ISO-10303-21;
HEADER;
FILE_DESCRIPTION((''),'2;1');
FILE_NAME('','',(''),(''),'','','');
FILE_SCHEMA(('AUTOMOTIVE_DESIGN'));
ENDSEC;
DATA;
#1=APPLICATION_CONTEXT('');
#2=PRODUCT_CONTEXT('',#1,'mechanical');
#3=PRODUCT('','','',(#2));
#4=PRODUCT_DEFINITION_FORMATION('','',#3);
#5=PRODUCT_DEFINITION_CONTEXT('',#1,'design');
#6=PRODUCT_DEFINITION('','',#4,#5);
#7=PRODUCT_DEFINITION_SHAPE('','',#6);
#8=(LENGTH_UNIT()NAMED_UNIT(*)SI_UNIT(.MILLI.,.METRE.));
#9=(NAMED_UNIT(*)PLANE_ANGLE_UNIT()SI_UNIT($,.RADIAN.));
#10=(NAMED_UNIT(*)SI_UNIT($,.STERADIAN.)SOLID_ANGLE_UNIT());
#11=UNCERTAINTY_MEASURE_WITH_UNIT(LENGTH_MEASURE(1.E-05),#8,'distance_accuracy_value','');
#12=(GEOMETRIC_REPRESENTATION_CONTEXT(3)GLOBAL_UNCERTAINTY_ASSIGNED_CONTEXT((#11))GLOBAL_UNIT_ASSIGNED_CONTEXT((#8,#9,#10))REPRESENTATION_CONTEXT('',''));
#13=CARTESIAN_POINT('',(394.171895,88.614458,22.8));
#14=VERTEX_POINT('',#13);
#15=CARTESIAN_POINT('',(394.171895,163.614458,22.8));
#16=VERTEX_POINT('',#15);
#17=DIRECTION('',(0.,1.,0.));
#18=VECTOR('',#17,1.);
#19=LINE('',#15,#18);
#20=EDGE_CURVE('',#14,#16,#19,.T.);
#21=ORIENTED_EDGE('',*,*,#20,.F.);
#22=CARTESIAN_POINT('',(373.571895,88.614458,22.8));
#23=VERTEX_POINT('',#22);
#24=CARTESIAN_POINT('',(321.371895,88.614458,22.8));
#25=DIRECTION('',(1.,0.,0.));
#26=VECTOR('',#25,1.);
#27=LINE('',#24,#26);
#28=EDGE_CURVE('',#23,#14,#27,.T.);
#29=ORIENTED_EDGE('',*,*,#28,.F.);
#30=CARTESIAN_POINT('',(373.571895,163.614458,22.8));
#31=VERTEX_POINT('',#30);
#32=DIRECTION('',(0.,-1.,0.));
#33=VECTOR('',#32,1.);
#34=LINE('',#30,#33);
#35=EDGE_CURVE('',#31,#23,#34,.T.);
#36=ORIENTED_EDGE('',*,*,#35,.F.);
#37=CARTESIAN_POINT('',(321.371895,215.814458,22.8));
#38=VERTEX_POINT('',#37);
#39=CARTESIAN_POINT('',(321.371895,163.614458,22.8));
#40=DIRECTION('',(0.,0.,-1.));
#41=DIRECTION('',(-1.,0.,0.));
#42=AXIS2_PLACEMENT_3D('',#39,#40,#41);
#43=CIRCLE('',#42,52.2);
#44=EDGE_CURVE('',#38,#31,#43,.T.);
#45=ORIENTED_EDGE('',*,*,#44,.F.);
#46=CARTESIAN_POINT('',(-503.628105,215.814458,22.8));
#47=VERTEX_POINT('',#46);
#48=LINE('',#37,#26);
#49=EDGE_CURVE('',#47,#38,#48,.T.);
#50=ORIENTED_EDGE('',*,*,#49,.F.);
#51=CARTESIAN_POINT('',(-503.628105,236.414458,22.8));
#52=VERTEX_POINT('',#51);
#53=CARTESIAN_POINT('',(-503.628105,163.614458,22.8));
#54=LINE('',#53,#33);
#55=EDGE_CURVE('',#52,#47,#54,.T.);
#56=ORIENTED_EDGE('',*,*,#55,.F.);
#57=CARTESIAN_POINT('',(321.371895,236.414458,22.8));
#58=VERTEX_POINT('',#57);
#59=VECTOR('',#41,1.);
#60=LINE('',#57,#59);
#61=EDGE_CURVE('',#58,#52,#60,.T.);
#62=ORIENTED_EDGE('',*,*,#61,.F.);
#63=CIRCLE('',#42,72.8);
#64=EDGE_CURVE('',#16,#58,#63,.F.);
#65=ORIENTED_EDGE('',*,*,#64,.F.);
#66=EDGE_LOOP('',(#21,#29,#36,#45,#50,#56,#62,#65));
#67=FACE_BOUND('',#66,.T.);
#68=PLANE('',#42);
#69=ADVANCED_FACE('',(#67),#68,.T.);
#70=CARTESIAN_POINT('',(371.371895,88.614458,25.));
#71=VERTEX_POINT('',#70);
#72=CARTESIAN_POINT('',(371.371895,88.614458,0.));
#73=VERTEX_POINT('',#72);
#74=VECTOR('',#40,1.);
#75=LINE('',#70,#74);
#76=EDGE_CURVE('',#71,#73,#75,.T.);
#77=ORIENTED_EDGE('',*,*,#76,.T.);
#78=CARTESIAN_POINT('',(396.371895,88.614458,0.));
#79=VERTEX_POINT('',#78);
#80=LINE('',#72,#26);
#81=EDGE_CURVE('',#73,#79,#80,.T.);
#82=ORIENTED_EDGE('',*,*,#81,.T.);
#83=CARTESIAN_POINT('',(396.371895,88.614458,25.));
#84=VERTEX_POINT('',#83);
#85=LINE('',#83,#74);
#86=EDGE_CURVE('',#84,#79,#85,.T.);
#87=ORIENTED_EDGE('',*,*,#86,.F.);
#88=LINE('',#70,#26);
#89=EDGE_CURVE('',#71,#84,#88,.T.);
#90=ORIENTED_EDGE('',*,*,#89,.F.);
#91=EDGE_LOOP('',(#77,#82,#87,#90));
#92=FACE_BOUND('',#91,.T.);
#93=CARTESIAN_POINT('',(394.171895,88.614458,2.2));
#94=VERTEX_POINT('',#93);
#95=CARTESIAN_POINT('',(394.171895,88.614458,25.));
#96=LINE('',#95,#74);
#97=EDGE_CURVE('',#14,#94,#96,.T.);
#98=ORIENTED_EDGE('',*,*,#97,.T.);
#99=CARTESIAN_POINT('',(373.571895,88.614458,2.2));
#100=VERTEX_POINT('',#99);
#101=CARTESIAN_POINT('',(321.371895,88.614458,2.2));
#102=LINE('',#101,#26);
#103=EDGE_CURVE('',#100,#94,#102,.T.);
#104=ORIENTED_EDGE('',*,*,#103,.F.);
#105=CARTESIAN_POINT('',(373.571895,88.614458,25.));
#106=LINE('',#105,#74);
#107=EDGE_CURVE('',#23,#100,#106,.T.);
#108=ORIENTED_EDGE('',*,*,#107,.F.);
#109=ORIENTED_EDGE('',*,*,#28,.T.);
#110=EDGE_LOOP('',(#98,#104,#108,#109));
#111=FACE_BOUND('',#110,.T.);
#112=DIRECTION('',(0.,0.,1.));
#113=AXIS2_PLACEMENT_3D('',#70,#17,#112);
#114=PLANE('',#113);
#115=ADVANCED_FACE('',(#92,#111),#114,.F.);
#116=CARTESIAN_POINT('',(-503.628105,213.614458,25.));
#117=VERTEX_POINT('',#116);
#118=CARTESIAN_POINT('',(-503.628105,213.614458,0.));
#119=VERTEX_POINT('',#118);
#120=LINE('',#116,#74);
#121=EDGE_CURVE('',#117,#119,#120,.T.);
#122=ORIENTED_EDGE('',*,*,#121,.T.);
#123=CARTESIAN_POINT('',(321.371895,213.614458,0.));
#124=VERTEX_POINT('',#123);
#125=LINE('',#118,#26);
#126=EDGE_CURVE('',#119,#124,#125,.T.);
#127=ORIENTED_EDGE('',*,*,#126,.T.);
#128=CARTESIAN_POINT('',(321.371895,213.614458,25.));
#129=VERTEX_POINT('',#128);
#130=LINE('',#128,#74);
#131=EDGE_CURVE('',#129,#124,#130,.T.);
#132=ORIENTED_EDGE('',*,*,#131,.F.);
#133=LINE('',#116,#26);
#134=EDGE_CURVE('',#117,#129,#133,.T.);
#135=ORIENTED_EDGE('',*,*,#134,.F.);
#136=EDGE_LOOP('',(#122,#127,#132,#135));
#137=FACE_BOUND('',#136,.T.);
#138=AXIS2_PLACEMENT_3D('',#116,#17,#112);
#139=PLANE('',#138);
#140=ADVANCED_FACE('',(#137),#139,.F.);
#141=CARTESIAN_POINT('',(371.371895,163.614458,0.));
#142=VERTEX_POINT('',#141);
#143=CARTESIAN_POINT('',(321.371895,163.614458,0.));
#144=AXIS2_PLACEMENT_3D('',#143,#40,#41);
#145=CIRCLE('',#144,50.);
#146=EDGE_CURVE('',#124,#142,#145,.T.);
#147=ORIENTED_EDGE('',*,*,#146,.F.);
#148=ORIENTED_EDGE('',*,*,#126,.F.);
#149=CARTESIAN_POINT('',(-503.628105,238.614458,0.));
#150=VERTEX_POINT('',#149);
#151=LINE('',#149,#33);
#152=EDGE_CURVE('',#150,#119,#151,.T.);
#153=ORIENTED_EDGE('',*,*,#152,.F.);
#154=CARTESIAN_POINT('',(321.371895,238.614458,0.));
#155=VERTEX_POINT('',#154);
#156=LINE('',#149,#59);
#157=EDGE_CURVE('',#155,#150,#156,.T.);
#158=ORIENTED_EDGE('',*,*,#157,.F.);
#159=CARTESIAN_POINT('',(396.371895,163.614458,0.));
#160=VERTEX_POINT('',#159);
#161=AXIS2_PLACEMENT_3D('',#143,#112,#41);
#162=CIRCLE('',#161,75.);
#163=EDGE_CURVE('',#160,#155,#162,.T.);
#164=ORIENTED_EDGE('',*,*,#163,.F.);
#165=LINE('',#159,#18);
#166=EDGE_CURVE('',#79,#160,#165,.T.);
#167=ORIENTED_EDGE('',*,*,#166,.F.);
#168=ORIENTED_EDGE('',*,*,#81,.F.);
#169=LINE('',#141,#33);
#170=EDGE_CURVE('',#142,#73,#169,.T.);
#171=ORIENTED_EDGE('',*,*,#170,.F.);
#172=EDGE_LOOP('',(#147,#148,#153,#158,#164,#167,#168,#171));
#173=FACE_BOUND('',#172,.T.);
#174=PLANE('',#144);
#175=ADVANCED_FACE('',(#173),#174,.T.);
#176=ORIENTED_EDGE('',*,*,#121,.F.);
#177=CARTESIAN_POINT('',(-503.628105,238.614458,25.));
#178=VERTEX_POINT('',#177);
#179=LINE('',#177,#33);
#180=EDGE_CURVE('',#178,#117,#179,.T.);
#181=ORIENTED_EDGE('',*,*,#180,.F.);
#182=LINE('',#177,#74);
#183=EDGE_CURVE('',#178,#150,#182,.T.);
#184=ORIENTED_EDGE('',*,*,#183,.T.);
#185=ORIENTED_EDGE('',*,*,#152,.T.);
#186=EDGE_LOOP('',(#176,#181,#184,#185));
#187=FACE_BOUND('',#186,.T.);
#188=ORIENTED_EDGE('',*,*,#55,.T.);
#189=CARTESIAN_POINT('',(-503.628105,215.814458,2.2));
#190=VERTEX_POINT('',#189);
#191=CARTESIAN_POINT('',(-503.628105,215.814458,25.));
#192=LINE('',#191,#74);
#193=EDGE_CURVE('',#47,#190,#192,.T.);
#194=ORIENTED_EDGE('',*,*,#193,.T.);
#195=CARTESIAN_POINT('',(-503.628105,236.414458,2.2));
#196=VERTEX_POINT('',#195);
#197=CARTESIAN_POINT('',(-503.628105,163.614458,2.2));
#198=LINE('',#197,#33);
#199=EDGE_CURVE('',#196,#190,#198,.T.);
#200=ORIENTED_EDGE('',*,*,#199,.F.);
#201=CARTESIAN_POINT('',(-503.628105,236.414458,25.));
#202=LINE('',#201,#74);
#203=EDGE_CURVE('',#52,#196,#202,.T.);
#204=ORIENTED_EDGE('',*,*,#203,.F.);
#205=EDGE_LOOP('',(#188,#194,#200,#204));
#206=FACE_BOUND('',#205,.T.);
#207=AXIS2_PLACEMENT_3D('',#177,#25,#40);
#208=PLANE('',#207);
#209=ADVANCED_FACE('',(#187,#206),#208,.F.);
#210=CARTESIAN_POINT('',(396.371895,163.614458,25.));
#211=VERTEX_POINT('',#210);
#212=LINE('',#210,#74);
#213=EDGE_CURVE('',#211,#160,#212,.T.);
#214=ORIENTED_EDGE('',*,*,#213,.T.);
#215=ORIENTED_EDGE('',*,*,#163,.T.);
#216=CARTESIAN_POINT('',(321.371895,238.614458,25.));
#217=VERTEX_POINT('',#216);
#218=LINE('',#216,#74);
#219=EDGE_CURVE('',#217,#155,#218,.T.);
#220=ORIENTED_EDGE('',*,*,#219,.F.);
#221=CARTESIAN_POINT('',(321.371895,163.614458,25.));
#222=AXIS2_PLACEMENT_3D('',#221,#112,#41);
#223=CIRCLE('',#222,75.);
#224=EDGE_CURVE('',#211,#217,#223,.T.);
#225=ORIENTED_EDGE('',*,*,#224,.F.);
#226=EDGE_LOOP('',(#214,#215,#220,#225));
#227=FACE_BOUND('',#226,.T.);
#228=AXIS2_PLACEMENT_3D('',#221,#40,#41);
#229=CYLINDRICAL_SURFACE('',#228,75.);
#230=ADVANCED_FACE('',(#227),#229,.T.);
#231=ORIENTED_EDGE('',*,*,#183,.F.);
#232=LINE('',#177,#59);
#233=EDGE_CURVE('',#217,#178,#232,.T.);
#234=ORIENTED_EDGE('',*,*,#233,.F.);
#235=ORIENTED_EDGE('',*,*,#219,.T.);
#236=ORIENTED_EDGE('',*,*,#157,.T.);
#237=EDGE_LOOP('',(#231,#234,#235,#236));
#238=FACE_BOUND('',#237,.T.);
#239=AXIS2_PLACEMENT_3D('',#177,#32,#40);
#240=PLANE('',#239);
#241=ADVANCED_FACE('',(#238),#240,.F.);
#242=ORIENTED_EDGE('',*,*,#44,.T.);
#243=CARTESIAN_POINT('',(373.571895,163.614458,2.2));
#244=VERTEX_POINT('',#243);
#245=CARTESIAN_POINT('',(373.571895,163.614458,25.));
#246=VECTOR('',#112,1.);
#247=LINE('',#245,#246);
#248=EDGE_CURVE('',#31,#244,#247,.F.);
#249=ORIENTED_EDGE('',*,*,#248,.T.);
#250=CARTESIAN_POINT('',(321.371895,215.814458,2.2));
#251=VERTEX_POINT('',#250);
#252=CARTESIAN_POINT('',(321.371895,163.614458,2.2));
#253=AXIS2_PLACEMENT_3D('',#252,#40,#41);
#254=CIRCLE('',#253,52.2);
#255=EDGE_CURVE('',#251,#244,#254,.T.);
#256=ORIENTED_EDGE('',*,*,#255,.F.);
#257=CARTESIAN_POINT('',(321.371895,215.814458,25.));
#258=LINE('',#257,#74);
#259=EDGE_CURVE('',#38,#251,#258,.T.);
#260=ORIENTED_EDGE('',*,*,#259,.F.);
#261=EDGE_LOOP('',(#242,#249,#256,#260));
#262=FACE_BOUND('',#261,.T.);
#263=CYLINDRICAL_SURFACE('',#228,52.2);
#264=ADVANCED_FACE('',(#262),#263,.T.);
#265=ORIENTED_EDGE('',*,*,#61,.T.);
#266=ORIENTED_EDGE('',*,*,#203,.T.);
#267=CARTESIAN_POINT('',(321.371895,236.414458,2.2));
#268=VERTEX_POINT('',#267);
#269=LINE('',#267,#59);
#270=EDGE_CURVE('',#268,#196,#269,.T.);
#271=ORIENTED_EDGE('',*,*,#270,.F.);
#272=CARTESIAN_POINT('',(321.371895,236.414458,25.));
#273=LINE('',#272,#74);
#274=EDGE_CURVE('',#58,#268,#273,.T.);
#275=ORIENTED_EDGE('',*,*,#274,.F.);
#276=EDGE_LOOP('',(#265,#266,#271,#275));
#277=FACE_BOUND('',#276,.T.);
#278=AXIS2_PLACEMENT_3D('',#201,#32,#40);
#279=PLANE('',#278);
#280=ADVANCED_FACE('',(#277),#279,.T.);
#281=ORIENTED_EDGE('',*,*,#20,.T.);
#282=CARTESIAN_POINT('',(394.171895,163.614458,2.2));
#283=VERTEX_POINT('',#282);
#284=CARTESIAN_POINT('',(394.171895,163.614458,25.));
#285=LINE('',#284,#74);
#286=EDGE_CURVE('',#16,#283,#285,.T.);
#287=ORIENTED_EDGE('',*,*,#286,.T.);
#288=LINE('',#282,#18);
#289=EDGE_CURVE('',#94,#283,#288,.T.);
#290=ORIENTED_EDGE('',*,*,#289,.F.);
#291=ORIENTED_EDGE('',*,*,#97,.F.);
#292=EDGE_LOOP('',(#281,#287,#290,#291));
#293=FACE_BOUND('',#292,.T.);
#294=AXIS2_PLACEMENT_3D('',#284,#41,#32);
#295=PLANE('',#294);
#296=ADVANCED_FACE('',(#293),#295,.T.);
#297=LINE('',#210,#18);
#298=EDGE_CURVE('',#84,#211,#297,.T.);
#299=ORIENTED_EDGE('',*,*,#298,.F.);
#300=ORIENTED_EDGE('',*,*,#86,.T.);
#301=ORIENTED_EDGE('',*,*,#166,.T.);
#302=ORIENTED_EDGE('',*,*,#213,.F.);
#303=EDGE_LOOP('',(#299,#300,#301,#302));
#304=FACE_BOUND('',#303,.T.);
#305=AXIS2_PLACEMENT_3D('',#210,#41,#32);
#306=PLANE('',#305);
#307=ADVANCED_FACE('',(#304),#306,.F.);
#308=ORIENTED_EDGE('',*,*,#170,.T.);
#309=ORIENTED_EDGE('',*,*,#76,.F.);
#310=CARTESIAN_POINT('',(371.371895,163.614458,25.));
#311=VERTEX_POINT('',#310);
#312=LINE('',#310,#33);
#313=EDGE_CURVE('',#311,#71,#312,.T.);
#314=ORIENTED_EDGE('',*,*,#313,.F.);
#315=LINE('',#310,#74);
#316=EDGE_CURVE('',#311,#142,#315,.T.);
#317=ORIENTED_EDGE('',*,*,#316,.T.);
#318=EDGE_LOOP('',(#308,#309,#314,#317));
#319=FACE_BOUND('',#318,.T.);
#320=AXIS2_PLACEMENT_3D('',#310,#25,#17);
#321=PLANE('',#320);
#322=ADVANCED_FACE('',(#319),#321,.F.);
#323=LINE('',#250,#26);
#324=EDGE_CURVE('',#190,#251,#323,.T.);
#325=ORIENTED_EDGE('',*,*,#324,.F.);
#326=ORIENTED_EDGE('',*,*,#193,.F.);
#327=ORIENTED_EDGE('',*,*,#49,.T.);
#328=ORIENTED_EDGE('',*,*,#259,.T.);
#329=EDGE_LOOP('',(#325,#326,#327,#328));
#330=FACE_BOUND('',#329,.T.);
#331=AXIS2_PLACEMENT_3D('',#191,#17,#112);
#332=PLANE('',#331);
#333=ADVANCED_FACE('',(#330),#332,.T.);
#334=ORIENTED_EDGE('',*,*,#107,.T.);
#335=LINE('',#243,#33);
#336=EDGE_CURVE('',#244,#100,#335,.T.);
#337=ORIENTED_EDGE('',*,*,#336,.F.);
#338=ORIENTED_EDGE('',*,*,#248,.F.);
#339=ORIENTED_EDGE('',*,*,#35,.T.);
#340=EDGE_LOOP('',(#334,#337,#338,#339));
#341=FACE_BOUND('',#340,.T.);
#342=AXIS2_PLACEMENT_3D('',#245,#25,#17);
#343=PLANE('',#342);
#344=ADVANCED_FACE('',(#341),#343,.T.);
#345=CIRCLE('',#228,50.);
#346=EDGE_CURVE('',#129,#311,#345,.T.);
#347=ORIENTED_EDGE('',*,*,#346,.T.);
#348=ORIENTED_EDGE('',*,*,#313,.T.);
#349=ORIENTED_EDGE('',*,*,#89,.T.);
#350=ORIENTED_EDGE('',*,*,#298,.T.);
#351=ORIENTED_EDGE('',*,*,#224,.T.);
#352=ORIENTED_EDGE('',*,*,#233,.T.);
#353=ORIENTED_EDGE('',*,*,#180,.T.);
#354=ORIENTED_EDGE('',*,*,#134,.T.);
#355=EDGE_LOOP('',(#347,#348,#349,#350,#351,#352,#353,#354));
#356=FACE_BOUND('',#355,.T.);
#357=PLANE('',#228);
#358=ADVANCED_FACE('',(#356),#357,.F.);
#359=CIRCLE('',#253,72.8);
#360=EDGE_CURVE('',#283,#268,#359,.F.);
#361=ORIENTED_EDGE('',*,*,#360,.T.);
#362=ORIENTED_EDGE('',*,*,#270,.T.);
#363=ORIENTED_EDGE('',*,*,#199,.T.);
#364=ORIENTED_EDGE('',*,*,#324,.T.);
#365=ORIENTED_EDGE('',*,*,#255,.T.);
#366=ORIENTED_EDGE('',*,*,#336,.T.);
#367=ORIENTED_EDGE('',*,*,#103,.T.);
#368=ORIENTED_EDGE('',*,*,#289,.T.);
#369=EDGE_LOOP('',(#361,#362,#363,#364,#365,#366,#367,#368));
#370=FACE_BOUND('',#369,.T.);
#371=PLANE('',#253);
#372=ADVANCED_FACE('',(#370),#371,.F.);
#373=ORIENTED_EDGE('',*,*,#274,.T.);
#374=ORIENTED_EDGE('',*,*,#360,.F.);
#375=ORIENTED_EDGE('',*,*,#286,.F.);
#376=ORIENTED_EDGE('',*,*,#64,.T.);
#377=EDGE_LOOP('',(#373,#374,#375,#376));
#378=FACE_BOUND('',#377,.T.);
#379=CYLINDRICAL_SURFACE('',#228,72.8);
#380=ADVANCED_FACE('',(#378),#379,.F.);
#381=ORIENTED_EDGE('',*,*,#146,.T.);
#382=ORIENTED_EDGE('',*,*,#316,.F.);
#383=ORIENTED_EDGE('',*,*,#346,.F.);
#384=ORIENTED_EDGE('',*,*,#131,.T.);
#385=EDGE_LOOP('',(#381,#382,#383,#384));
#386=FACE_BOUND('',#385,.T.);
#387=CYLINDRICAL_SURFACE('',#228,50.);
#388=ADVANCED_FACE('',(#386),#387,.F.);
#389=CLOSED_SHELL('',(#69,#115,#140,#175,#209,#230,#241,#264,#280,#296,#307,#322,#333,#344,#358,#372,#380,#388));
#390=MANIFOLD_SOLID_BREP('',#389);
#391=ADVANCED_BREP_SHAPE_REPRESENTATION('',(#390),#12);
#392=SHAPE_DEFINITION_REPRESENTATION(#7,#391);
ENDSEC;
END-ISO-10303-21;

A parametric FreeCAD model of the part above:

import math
import FreeCAD as App
import Part
import Sketcher

V = App.Vector


def faces_at(feature, points):
    """Names of the faces that lie closest to the given points."""
    faces = feature.Shape.Faces
    near = lambda p: min(range(len(faces)), key=lambda i: faces[i].distToShape(Part.Vertex(*p))[0])
    return sorted({f"Face{near(p) + 1}" for p in points})

doc = App.newDocument("Part")
body = doc.addObject("PartDesign::Body", "Body")

# Sketch on XY plane
sketch1 = body.newObject("Sketcher::SketchObject", "Sketch")
sketch1.AttachmentSupport = (doc.getObject("XY_Plane"), [""])
sketch1.MapMode = "FlatFace"
sketch1.addGeometry([
    Part.LineSegment(V(-504, 214, 0), V(321, 214, 0)),  # 0
    Part.ArcOfCircle(Part.Circle(V(321, 164, 0), V(0, 0, 1), 50), math.radians(0), math.radians(90)),  # 1
    Part.LineSegment(V(371, 164, 0), V(371, 89, 0)),  # 2
    Part.LineSegment(V(371, 89, 0), V(396, 89, 0)),  # 3
    Part.LineSegment(V(396, 89, 0), V(396, 164, 0)),  # 4
    Part.ArcOfCircle(Part.Circle(V(321, 164, 0), V(0, 0, 1), 75), math.radians(0), math.radians(90)),  # 5
    Part.LineSegment(V(321, 239, 0), V(-504, 239, 0)),  # 6
    Part.LineSegment(V(-504, 239, 0), V(-504, 214, 0)),  # 7
], False)
sketch1.addConstraint([
    Sketcher.Constraint("Tangent", 0, 2, 1, 2),
    Sketcher.Constraint("Tangent", 1, 1, 2, 1),
    Sketcher.Constraint("Coincident", 2, 2, 3, 1),
    Sketcher.Constraint("Coincident", 3, 2, 4, 1),
    Sketcher.Constraint("Tangent", 4, 2, 5, 1),
    Sketcher.Constraint("Tangent", 5, 2, 6, 1),
    Sketcher.Constraint("Coincident", 6, 2, 7, 1),
    Sketcher.Constraint("Coincident", 7, 2, 0, 1),
    Sketcher.Constraint("Horizontal", 0),
    Sketcher.Constraint("Vertical", 2),
    Sketcher.Constraint("Horizontal", 3),
    Sketcher.Constraint("Vertical", 4),
    Sketcher.Constraint("Horizontal", 6),
    Sketcher.Constraint("Vertical", 7),
    Sketcher.Constraint("Coincident", 5, 3, 1, 3),
    Sketcher.Constraint("Radius", 1, 50.0),
    Sketcher.Constraint("Radius", 5, 75.0),
    Sketcher.Constraint("DistanceX", 0, 1, 0, 2, 825.0),
    Sketcher.Constraint("DistanceY", 2, 2, 2, 1, 75.0),
    Sketcher.Constraint("DistanceX", -1, 1, 1, 3, 321.371895),
    Sketcher.Constraint("DistanceY", -1, 1, 1, 3, 163.614458),
])
pad1 = body.newObject("PartDesign::Pad", "Pad")
pad1.Profile = sketch1
pad1.Length = 25
doc.recompute()

thickness = body.newObject("PartDesign::Thickness", "Thickness")
thickness.Base = (pad1, faces_at(pad1, [(383.872, 88.614, 12.5), (-503.628, 226.114, 12.5)]))
thickness.Value = 2.2
thickness.Reversed = True
thickness.Join = "Intersection"

doc.recompute()
